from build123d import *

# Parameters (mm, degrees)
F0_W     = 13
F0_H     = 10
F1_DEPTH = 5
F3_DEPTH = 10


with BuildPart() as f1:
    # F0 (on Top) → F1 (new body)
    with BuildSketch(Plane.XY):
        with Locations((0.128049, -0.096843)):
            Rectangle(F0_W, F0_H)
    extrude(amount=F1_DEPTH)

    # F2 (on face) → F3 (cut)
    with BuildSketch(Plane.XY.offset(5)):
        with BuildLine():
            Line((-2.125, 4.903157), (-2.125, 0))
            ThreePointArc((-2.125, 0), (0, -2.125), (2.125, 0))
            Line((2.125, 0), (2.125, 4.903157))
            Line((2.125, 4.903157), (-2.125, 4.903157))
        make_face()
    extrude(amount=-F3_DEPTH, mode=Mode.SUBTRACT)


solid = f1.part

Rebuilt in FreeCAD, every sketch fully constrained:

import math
import FreeCAD as App
import Part
import Sketcher
from FreeCAD import Vector

doc = App.newDocument("Part")
params = doc.addObject("Spreadsheet::Sheet", "Params")
for row, (alias, value) in enumerate([
    ("sketch1_width", "13 mm"),
    ("sketch1_height", "10 mm"),
    ("pad1_length", "5 mm"),
    ("pocket1_length", "10 mm"),
], start=1):
    params.set(f"A{row}", alias)
    params.set(f"B{row}", "=" + value)
    params.setAlias(f"B{row}", alias)

body = doc.addObject("PartDesign::Body", "Body")

# Sketch on XY plane
sketch1 = doc.addObject("Sketcher::SketchObject", "Sketch")
body.addObject(sketch1)
sketch1.AttachmentSupport = (doc.XY_Plane, [""])
sketch1.MapMode = "FlatFace"
sketch1.addGeometry(Part.LineSegment(Vector(-6.371951, 4.903157, 0), Vector(-6.371951, -5.096843, 0)), False)
sketch1.addGeometry(Part.LineSegment(Vector(-6.371951, -5.096843, 0), Vector(6.628049, -5.096843, 0)), False)
sketch1.addGeometry(Part.LineSegment(Vector(6.628049, -5.096843, 0), Vector(6.628049, 4.903157, 0)), False)
sketch1.addGeometry(Part.LineSegment(Vector(6.628049, 4.903157, 0), Vector(-6.371951, 4.903157, 0)), False)
sketch1.addConstraint(Sketcher.Constraint("Coincident", 0, 2, 1, 1))
sketch1.addConstraint(Sketcher.Constraint("Coincident", 1, 2, 2, 1))
sketch1.addConstraint(Sketcher.Constraint("Coincident", 2, 2, 3, 1))
sketch1.addConstraint(Sketcher.Constraint("Coincident", 3, 2, 0, 1))
sketch1.addConstraint(Sketcher.Constraint("Vertical", 0))
sketch1.addConstraint(Sketcher.Constraint("Horizontal", 1))
sketch1.addConstraint(Sketcher.Constraint("Vertical", 2))
sketch1.addConstraint(Sketcher.Constraint("Horizontal", 3))
sketch1.addConstraint(Sketcher.Constraint("DistanceX", 1, 1, 1, 2, 13.0))
sketch1.addConstraint(Sketcher.Constraint("DistanceY", 0, 2, 0, 1, 10.0))
sketch1.addConstraint(Sketcher.Constraint("DistanceX", 0, 2, -1, 1, 6.371951))
sketch1.addConstraint(Sketcher.Constraint("DistanceY", 0, 2, -1, 1, 5.096843))
sketch1.setExpression("Constraints[8]", "Params.sketch1_width")
sketch1.setExpression("Constraints[9]", "Params.sketch1_height")
pad1 = doc.addObject("PartDesign::Pad", "Pad")
body.addObject(pad1)
pad1.Profile = sketch1
pad1.setExpression("Length", "Params.pad1_length")

# Sketch on XY plane
sketch2 = doc.addObject("Sketcher::SketchObject", "Sketch001")
body.addObject(sketch2)
sketch2.AttachmentSupport = (doc.XY_Plane, [""])
sketch2.MapMode = "FlatFace"
sketch2.AttachmentOffset = App.Placement(Vector(0, 0, 5), App.Rotation())
sketch2.addGeometry(Part.LineSegment(Vector(-2.125, 4.903157, 0), Vector(-2.125, 0, 0)), False)
sketch2.addGeometry(Part.ArcOfCircle(Part.Circle(Vector(0, 0, 0), Vector(0, 0, 1), 2.125), math.radians(180), math.radians(360)), False)
sketch2.addGeometry(Part.LineSegment(Vector(2.125, 0, 0), Vector(2.125, 4.903157, 0)), False)
sketch2.addGeometry(Part.LineSegment(Vector(2.125, 4.903157, 0), Vector(-2.125, 4.903157, 0)), False)
sketch2.addConstraint(Sketcher.Constraint("Tangent", 0, 2, 1, 1))
sketch2.addConstraint(Sketcher.Constraint("Tangent", 1, 2, 2, 1))
sketch2.addConstraint(Sketcher.Constraint("Coincident", 2, 2, 3, 1))
sketch2.addConstraint(Sketcher.Constraint("Coincident", 3, 2, 0, 1))
sketch2.addConstraint(Sketcher.Constraint("Vertical", 0))
sketch2.addConstraint(Sketcher.Constraint("Vertical", 2))
sketch2.addConstraint(Sketcher.Constraint("Horizontal", 3))
sketch2.addConstraint(Sketcher.Constraint("Coincident", 1, 3, -1, 1))
sketch2.addConstraint(Sketcher.Constraint("Radius", 1, 2.125))
sketch2.addConstraint(Sketcher.Constraint("DistanceY", 0, 2, 0, 1, 4.903157))
pocket1 = doc.addObject("PartDesign::Pocket", "Pocket")
body.addObject(pocket1)
pocket1.Profile = sketch2
pocket1.setExpression("Length", "Params.pocket1_length")

doc.recompute()
